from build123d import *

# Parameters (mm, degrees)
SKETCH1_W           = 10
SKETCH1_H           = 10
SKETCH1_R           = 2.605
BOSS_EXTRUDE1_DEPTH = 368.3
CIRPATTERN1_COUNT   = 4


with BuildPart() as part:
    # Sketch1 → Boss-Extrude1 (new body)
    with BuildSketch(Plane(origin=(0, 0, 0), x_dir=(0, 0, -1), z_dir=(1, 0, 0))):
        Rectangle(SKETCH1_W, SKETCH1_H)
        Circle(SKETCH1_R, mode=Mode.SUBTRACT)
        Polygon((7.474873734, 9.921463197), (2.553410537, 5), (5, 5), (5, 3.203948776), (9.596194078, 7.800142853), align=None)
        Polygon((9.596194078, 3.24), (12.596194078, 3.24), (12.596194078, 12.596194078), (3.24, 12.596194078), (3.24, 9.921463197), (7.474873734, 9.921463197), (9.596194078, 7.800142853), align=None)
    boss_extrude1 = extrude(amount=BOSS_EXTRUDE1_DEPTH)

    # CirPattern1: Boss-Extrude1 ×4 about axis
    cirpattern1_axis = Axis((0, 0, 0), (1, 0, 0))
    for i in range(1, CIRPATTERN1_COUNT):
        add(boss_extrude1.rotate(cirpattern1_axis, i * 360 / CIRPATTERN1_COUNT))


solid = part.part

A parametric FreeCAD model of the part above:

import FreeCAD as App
import Part
import Sketcher
Q = App.Units.Quantity

doc = App.newDocument("Part")
body = doc.addObject("PartDesign::Body", "Body")

# Sketch on YZ plane
sketch1 = doc.addObject("Sketcher::SketchObject", "Sketch")
body.addObject(sketch1)
sketch1.AttachmentSupport = (doc.YZ_Plane, [""])
sketch1.MapMode = "FlatFace"
sketch1.addGeometry(Part.LineSegment(App.Vector(5, 5, 0), App.Vector(-5, 5, 0)), False)
sketch1.addGeometry(Part.LineSegment(App.Vector(-5, 5, 0), App.Vector(-5, -5, 0)), False)
sketch1.addGeometry(Part.LineSegment(App.Vector(-5, -5, 0), App.Vector(3.2, -5, 0)), False)
sketch1.addGeometry(Part.LineSegment(App.Vector(3.2, -5, 0), App.Vector(7.8, -9.6, 0)), False)
sketch1.addGeometry(Part.LineSegment(App.Vector(7.8, -9.6, 0), App.Vector(3.2, -9.6, 0)), False)
sketch1.addGeometry(Part.LineSegment(App.Vector(3.2, -9.6, 0), App.Vector(3.2, -12.6, 0)), False)
sketch1.addGeometry(Part.LineSegment(App.Vector(3.2, -12.6, 0), App.Vector(12.6, -12.6, 0)), False)
sketch1.addGeometry(Part.LineSegment(App.Vector(12.6, -12.6, 0), App.Vector(12.6, -3.2, 0)), False)
sketch1.addGeometry(Part.LineSegment(App.Vector(12.6, -3.2, 0), App.Vector(9.9, -3.2, 0)), False)
sketch1.addGeometry(Part.LineSegment(App.Vector(9.9, -3.2, 0), App.Vector(9.9, -7.5, 0)), False)
sketch1.addGeometry(Part.LineSegment(App.Vector(9.9, -7.5, 0), App.Vector(5, -2.6, 0)), False)
sketch1.addGeometry(Part.LineSegment(App.Vector(5, -2.6, 0), App.Vector(5, 5, 0)), False)
sketch1.addGeometry(Part.Circle(App.Vector(0, 0, 0), App.Vector(0, 0, 1), 2.6), False)
sketch1.addConstraint(Sketcher.Constraint("Coincident", 0, 2, 1, 1))
sketch1.addConstraint(Sketcher.Constraint("Coincident", 1, 2, 2, 1))
sketch1.addConstraint(Sketcher.Constraint("Coincident", 2, 2, 3, 1))
sketch1.addConstraint(Sketcher.Constraint("Coincident", 3, 2, 4, 1))
sketch1.addConstraint(Sketcher.Constraint("Coincident", 4, 2, 5, 1))
sketch1.addConstraint(Sketcher.Constraint("Coincident", 5, 2, 6, 1))
sketch1.addConstraint(Sketcher.Constraint("Coincident", 6, 2, 7, 1))
sketch1.addConstraint(Sketcher.Constraint("Coincident", 7, 2, 8, 1))
sketch1.addConstraint(Sketcher.Constraint("Coincident", 8, 2, 9, 1))
sketch1.addConstraint(Sketcher.Constraint("Coincident", 9, 2, 10, 1))
sketch1.addConstraint(Sketcher.Constraint("Coincident", 10, 2, 11, 1))
sketch1.addConstraint(Sketcher.Constraint("Coincident", 11, 2, 0, 1))
sketch1.addConstraint(Sketcher.Constraint("Horizontal", 0))
sketch1.addConstraint(Sketcher.Constraint("Vertical", 1))
sketch1.addConstraint(Sketcher.Constraint("Horizontal", 2))
sketch1.addConstraint(Sketcher.Constraint("Horizontal", 4))
sketch1.addConstraint(Sketcher.Constraint("Vertical", 5))
sketch1.addConstraint(Sketcher.Constraint("Horizontal", 6))
sketch1.addConstraint(Sketcher.Constraint("Vertical", 7))
sketch1.addConstraint(Sketcher.Constraint("Horizontal", 8))
sketch1.addConstraint(Sketcher.Constraint("Vertical", 9))
sketch1.addConstraint(Sketcher.Constraint("Vertical", 11))
sketch1.addConstraint(Sketcher.Constraint("Coincident", 12, 3, -1, 1))
sketch1.addConstraint(Sketcher.Constraint("Symmetric", 1, 2, 11, 2, -1, 1))
sketch1.addConstraint(Sketcher.Constraint("Parallel", 3, 10))
sketch1.addConstraint(Sketcher.Constraint("Equal", 0, 1))
sketch1.addConstraint(Sketcher.Constraint("Equal", 6, 7))
sketch1.addConstraint(Sketcher.Constraint("Diameter", 12, 5.21))
sketch1.addConstraint(Sketcher.Constraint("DistanceX", 0, 2, 0, 1, 10.0))
sketch1.addConstraint(Sketcher.Constraint("DistanceY", 5, 2, 5, 1, 3.0))
sketch1.addConstraint(Sketcher.Constraint("Angle", 3, Q("-45 deg")))
sketch1.addConstraint(Sketcher.Constraint("Distance", 3, 6.5))
sketch1.addConstraint(Sketcher.Constraint("Distance", 10, 6.96))
sketch1.addConstraint(Sketcher.Constraint("DistanceX", -1, 1, 4, 2, 3.24))
sketch1.addConstraint(Sketcher.Constraint("DistanceY", 7, 2, -1, 1, 3.24))
sketch1.addConstraint(Sketcher.Constraint("DistanceX", 2, 1, 2, 2, 8.203949))
sketch1.addConstraint(Sketcher.Constraint("DistanceY", 11, 1, 11, 2, 7.553411))
pad1 = doc.addObject("PartDesign::Pad", "Pad")
body.addObject(pad1)
pad1.Profile = sketch1
pad1.Length = 368.3
doc.recompute()

polarpattern = doc.addObject("PartDesign::PolarPattern", "PolarPattern")
body.addObject(polarpattern)
polarpattern.Originals = [pad1]
polarpattern.Axis = (doc.X_Axis, [""])
polarpattern.Angle = 360
polarpattern.Occurrences = 4
body.Tip = polarpattern

doc.recompute()
